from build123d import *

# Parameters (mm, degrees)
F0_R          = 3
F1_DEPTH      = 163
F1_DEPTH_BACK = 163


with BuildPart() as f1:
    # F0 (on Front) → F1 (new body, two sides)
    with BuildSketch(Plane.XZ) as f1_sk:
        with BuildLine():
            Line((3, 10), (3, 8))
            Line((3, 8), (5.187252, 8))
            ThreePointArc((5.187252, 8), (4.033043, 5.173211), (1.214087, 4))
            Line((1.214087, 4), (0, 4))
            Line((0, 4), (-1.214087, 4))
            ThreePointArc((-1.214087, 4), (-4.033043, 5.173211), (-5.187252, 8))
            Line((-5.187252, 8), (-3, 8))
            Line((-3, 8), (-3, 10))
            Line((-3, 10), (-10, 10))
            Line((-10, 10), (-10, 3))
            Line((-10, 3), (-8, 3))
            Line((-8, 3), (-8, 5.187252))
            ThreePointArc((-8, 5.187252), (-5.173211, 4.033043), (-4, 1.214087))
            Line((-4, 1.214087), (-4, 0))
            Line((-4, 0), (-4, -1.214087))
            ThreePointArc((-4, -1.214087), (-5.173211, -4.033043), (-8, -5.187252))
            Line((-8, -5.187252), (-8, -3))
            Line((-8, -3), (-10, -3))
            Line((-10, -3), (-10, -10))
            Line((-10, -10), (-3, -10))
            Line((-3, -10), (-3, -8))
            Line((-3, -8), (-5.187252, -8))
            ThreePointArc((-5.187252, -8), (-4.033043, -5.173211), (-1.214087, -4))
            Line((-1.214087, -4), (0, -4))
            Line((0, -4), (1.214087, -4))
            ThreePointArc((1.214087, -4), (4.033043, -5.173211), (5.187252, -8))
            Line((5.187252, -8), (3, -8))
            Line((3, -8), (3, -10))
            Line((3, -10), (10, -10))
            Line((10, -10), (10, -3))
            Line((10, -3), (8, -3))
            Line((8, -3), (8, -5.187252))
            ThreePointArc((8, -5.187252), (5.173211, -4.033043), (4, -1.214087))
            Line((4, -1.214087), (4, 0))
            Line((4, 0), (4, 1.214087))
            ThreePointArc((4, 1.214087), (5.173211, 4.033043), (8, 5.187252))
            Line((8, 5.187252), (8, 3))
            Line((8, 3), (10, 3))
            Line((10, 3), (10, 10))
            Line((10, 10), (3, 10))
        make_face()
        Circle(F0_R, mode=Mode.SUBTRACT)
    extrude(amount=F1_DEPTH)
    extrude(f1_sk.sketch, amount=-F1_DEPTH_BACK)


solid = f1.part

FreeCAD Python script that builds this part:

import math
import FreeCAD as App
import Part
import Sketcher

doc = App.newDocument("Part")
body = doc.addObject("PartDesign::Body", "Body")

# Sketch on XZ plane
sketch1 = body.newObject("Sketcher::SketchObject", "Sketch")
sketch1.AttachmentSupport = (doc.getObject("XZ_Plane"), [""])
sketch1.MapMode = "FlatFace"
sketch1.addGeometry(Part.LineSegment(App.Vector(3, 10, 0), App.Vector(3, 8, 0)), False)
sketch1.addGeometry(Part.LineSegment(App.Vector(3, 8, 0), App.Vector(5.187252, 8, 0)), False)
sketch1.addGeometry(Part.ArcOfCircle(Part.Circle(App.Vector(1.214088, 7.973254, 0), App.Vector(0, 0, 1), 3.973254), math.radians(-90.000017), math.radians(0.385693)), False)
sketch1.addGeometry(Part.LineSegment(App.Vector(1.214087, 4, 0), App.Vector(-1.214087, 4, 0)), False)
sketch1.addGeometry(Part.ArcOfCircle(Part.Circle(App.Vector(-1.214088, 7.973254, 0), App.Vector(0, 0, 1), 3.973254), math.radians(179.614307), math.radians(270.000017)), False)
sketch1.addGeometry(Part.LineSegment(App.Vector(-5.187252, 8, 0), App.Vector(-3, 8, 0)), False)
sketch1.addGeometry(Part.LineSegment(App.Vector(-3, 8, 0), App.Vector(-3, 10, 0)), False)
sketch1.addGeometry(Part.LineSegment(App.Vector(-3, 10, 0), App.Vector(-10, 10, 0)), False)
sketch1.addGeometry(Part.LineSegment(App.Vector(-10, 10, 0), App.Vector(-10, 3, 0)), False)
sketch1.addGeometry(Part.LineSegment(App.Vector(-10, 3, 0), App.Vector(-8, 3, 0)), False)
sketch1.addGeometry(Part.LineSegment(App.Vector(-8, 3, 0), App.Vector(-8, 5.187252, 0)), False)
sketch1.addGeometry(Part.ArcOfCircle(Part.Circle(App.Vector(-7.973254, 1.214088, 0), App.Vector(0, 0, 1), 3.973254), math.radians(-0.000017), math.radians(90.385693)), False)
sketch1.addGeometry(Part.LineSegment(App.Vector(-4, 1.214087, 0), App.Vector(-4, -1.214087, 0)), False)
sketch1.addGeometry(Part.ArcOfCircle(Part.Circle(App.Vector(-7.973254, -1.214088, 0), App.Vector(0, 0, 1), 3.973254), math.radians(-90.385693), math.radians(0.000017)), False)
sketch1.addGeometry(Part.LineSegment(App.Vector(-8, -5.187252, 0), App.Vector(-8, -3, 0)), False)
sketch1.addGeometry(Part.LineSegment(App.Vector(-8, -3, 0), App.Vector(-10, -3, 0)), False)
sketch1.addGeometry(Part.LineSegment(App.Vector(-10, -3, 0), App.Vector(-10, -10, 0)), False)
sketch1.addGeometry(Part.LineSegment(App.Vector(-10, -10, 0), App.Vector(-3, -10, 0)), False)
sketch1.addGeometry(Part.LineSegment(App.Vector(-3, -10, 0), App.Vector(-3, -8, 0)), False)
sketch1.addGeometry(Part.LineSegment(App.Vector(-3, -8, 0), App.Vector(-5.187252, -8, 0)), False)
sketch1.addGeometry(Part.ArcOfCircle(Part.Circle(App.Vector(-1.214088, -7.973254, 0), App.Vector(0, 0, 1), 3.973254), math.radians(89.999983), math.radians(180.385693)), False)
sketch1.addGeometry(Part.LineSegment(App.Vector(-1.214087, -4, 0), App.Vector(1.214087, -4, 0)), False)
sketch1.addGeometry(Part.ArcOfCircle(Part.Circle(App.Vector(1.214088, -7.973254, 0), App.Vector(0, 0, 1), 3.973254), math.radians(-0.385693), math.radians(90.000017)), False)
sketch1.addGeometry(Part.LineSegment(App.Vector(5.187252, -8, 0), App.Vector(3, -8, 0)), False)
sketch1.addGeometry(Part.LineSegment(App.Vector(3, -8, 0), App.Vector(3, -10, 0)), False)
sketch1.addGeometry(Part.LineSegment(App.Vector(3, -10, 0), App.Vector(10, -10, 0)), False)
sketch1.addGeometry(Part.LineSegment(App.Vector(10, -10, 0), App.Vector(10, -3, 0)), False)
sketch1.addGeometry(Part.LineSegment(App.Vector(10, -3, 0), App.Vector(8, -3, 0)), False)
sketch1.addGeometry(Part.LineSegment(App.Vector(8, -3, 0), App.Vector(8, -5.187252, 0)), False)
sketch1.addGeometry(Part.ArcOfCircle(Part.Circle(App.Vector(7.973254, -1.214088, 0), App.Vector(0, 0, 1), 3.973254), math.radians(179.999983), math.radians(270.385693)), False)
sketch1.addGeometry(Part.LineSegment(App.Vector(4, -1.214087, 0), App.Vector(4, 1.214087, 0)), False)
sketch1.addGeometry(Part.ArcOfCircle(Part.Circle(App.Vector(7.973254, 1.214088, 0), App.Vector(0, 0, 1), 3.973254), math.radians(89.614307), math.radians(180.000017)), False)
sketch1.addGeometry(Part.LineSegment(App.Vector(8, 5.187252, 0), App.Vector(8, 3, 0)), False)
sketch1.addGeometry(Part.LineSegment(App.Vector(8, 3, 0), App.Vector(10, 3, 0)), False)
sketch1.addGeometry(Part.LineSegment(App.Vector(10, 3, 0), App.Vector(10, 10, 0)), False)
sketch1.addGeometry(Part.LineSegment(App.Vector(10, 10, 0), App.Vector(3, 10, 0)), False)
sketch1.addGeometry(Part.Circle(App.Vector(0, 0, 0), App.Vector(0, 0, 1), 3), False)
sketch1.addConstraint(Sketcher.Constraint("Coincident", 0, 2, 1, 1))
sketch1.addConstraint(Sketcher.Constraint("Coincident", 1, 2, 2, 2))
sketch1.addConstraint(Sketcher.Constraint("Tangent", 2, 1, 3, 1))
sketch1.addConstraint(Sketcher.Constraint("Tangent", 3, 2, 4, 2))
sketch1.addConstraint(Sketcher.Constraint("Coincident", 4, 1, 5, 1))
sketch1.addConstraint(Sketcher.Constraint("Coincident", 5, 2, 6, 1))
sketch1.addConstraint(Sketcher.Constraint("Coincident", 6, 2, 7, 1))
sketch1.addConstraint(Sketcher.Constraint("Coincident", 7, 2, 8, 1))
sketch1.addConstraint(Sketcher.Constraint("Coincident", 8, 2, 9, 1))
sketch1.addConstraint(Sketcher.Constraint("Coincident", 9, 2, 10, 1))
sketch1.addConstraint(Sketcher.Constraint("Coincident", 10, 2, 11, 2))
sketch1.addConstraint(Sketcher.Constraint("Tangent", 11, 1, 12, 1))
sketch1.addConstraint(Sketcher.Constraint("Tangent", 12, 2, 13, 2))
sketch1.addConstraint(Sketcher.Constraint("Coincident", 13, 1, 14, 1))
sketch1.addConstraint(Sketcher.Constraint("Coincident", 14, 2, 15, 1))
sketch1.addConstraint(Sketcher.Constraint("Coincident", 15, 2, 16, 1))
sketch1.addConstraint(Sketcher.Constraint("Coincident", 16, 2, 17, 1))
sketch1.addConstraint(Sketcher.Constraint("Coincident", 17, 2, 18, 1))
sketch1.addConstraint(Sketcher.Constraint("Coincident", 18, 2, 19, 1))
sketch1.addConstraint(Sketcher.Constraint("Coincident", 19, 2, 20, 2))
sketch1.addConstraint(Sketcher.Constraint("Tangent", 20, 1, 21, 1))
sketch1.addConstraint(Sketcher.Constraint("Tangent", 21, 2, 22, 2))
sketch1.addConstraint(Sketcher.Constraint("Coincident", 22, 1, 23, 1))
sketch1.addConstraint(Sketcher.Constraint("Coincident", 23, 2, 24, 1))
sketch1.addConstraint(Sketcher.Constraint("Coincident", 24, 2, 25, 1))
sketch1.addConstraint(Sketcher.Constraint("Coincident", 25, 2, 26, 1))
sketch1.addConstraint(Sketcher.Constraint("Coincident", 26, 2, 27, 1))
sketch1.addConstraint(Sketcher.Constraint("Coincident", 27, 2, 28, 1))
sketch1.addConstraint(Sketcher.Constraint("Coincident", 28, 2, 29, 2))
sketch1.addConstraint(Sketcher.Constraint("Tangent", 29, 1, 30, 1))
sketch1.addConstraint(Sketcher.Constraint("Tangent", 30, 2, 31, 2))
sketch1.addConstraint(Sketcher.Constraint("Coincident", 31, 1, 32, 1))
sketch1.addConstraint(Sketcher.Constraint("Coincident", 32, 2, 33, 1))
sketch1.addConstraint(Sketcher.Constraint("Coincident", 33, 2, 34, 1))
sketch1.addConstraint(Sketcher.Constraint("Coincident", 34, 2, 35, 1))
sketch1.addConstraint(Sketcher.Constraint("Coincident", 35, 2, 0, 1))
sketch1.addConstraint(Sketcher.Constraint("Vertical", 0))
sketch1.addConstraint(Sketcher.Constraint("Horizontal", 1))
sketch1.addConstraint(Sketcher.Constraint("Horizontal", 3))
sketch1.addConstraint(Sketcher.Constraint("Horizontal", 5))
sketch1.addConstraint(Sketcher.Constraint("Vertical", 6))
sketch1.addConstraint(Sketcher.Constraint("Horizontal", 7))
sketch1.addConstraint(Sketcher.Constraint("Vertical", 8))
sketch1.addConstraint(Sketcher.Constraint("Horizontal", 9))
sketch1.addConstraint(Sketcher.Constraint("Vertical", 10))
sketch1.addConstraint(Sketcher.Constraint("Vertical", 12))
sketch1.addConstraint(Sketcher.Constraint("Vertical", 14))
sketch1.addConstraint(Sketcher.Constraint("Horizontal", 15))
sketch1.addConstraint(Sketcher.Constraint("Vertical", 16))
sketch1.addConstraint(Sketcher.Constraint("Horizontal", 17))
sketch1.addConstraint(Sketcher.Constraint("Vertical", 18))
sketch1.addConstraint(Sketcher.Constraint("Horizontal", 19))
sketch1.addConstraint(Sketcher.Constraint("Horizontal", 21))
sketch1.addConstraint(Sketcher.Constraint("Horizontal", 23))
sketch1.addConstraint(Sketcher.Constraint("Vertical", 24))
sketch1.addConstraint(Sketcher.Constraint("Horizontal", 25))
sketch1.addConstraint(Sketcher.Constraint("Vertical", 26))
sketch1.addConstraint(Sketcher.Constraint("Horizontal", 27))
sketch1.addConstraint(Sketcher.Constraint("Vertical", 28))
sketch1.addConstraint(Sketcher.Constraint("Vertical", 30))
sketch1.addConstraint(Sketcher.Constraint("Vertical", 32))
sketch1.addConstraint(Sketcher.Constraint("Horizontal", 33))
sketch1.addConstraint(Sketcher.Constraint("Vertical", 34))
sketch1.addConstraint(Sketcher.Constraint("Horizontal", 35))
sketch1.addConstraint(Sketcher.Constraint("Coincident", 36, 3, -1, 1))
sketch1.addConstraint(Sketcher.Constraint("Equal", 2, 4))
sketch1.addConstraint(Sketcher.Constraint("Equal", 4, 11))
sketch1.addConstraint(Sketcher.Constraint("Equal", 11, 13))
sketch1.addConstraint(Sketcher.Constraint("Equal", 13, 20))
sketch1.addConstraint(Sketcher.Constraint("Equal", 20, 22))
sketch1.addConstraint(Sketcher.Constraint("Equal", 22, 29))
sketch1.addConstraint(Sketcher.Constraint("Equal", 29, 31))
sketch1.addConstraint(Sketcher.Constraint("Symmetric", 2, 3, 20, 3, -1, 1))
sketch1.addConstraint(Sketcher.Constraint("Symmetric", 11, 3, 29, 3, -1, 1))
sketch1.addConstraint(Sketcher.Constraint("Symmetric", 0, 2, 18, 2, -1, 1))
sketch1.addConstraint(Sketcher.Constraint("Symmetric", 4, 1, 22, 1, -1, 1))
sketch1.addConstraint(Sketcher.Constraint("Symmetric", 6, 2, 24, 2, -1, 1))
sketch1.addConstraint(Sketcher.Constraint("Symmetric", 8, 2, 26, 2, -1, 1))
sketch1.addConstraint(Sketcher.Constraint("Symmetric", 13, 1, 31, 1, -1, 1))
sketch1.addConstraint(Sketcher.Constraint("Symmetric", 15, 2, 33, 2, -1, 1))
sketch1.addConstraint(Sketcher.Constraint("Symmetric", 1, 2, 4, 1, -2))
sketch1.addConstraint(Sketcher.Constraint("Symmetric", 17, 2, 24, 2, -2))
sketch1.addConstraint(Sketcher.Constraint("Symmetric", 15, 2, 26, 2, -2))
sketch1.addConstraint(Sketcher.Constraint("Symmetric", 13, 1, 28, 2, -2))
sketch1.addConstraint(Sketcher.Constraint("Horizontal", 10, 2, 31, 1))
sketch1.addConstraint(Sketcher.Constraint("Horizontal", 7, 2, 34, 2))
sketch1.addConstraint(Sketcher.Constraint("Equal", 33, 0))
sketch1.addConstraint(Sketcher.Constraint("Equal", 35, 8))
sketch1.addConstraint(Sketcher.Constraint("Equal", 23, 10))
sketch1.addConstraint(Sketcher.Constraint("Equal", 21, 12))
sketch1.addConstraint(Sketcher.Constraint("Diameter", 36, 6.0))
sketch1.addConstraint(Sketcher.Constraint("DistanceX", 7, 2, 7, 1, 7.0))
sketch1.addConstraint(Sketcher.Constraint("DistanceX", 9, 1, 9, 2, 2.0))
sketch1.addConstraint(Sketcher.Constraint("DistanceX", -1, 1, 0, 2, 3.0))
sketch1.addConstraint(Sketcher.Constraint("DistanceY", -1, 1, 0, 2, 8.0))
sketch1.addConstraint(Sketcher.Constraint("DistanceY", -1, 1, 2, 1, 4.0))
sketch1.addConstraint(Sketcher.Constraint("Radius", 2, 3.973254))
sketch1.addConstraint(Sketcher.Constraint("DistanceX", 1, 2, 31, 3, 2.786002))
pad1 = body.newObject("PartDesign::Pad", "Pad")
pad1.Profile = sketch1
pad1.Type = "TwoLengths"
pad1.Length = 163
pad1.Length2 = 163

doc.recompute()
